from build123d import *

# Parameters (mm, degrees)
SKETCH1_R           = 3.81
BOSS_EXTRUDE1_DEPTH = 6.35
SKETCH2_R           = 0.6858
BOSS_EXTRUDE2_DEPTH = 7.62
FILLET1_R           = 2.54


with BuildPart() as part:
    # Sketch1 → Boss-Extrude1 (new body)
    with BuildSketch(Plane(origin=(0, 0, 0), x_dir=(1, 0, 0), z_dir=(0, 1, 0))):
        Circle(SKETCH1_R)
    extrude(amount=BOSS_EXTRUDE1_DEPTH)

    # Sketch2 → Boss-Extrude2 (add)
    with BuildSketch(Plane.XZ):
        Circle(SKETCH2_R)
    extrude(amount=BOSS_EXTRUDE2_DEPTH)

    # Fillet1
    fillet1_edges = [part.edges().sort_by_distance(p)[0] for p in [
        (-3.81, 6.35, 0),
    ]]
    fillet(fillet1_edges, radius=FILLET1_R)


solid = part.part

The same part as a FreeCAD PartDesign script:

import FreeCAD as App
import Part
import Sketcher
from FreeCAD import Vector
Q = App.Units.Quantity


def edges_at(feature, points):
    """Names of the edges that pass closest to the given points."""
    edges = feature.Shape.Edges
    near = lambda p: min(range(len(edges)), key=lambda i: edges[i].distToShape(Part.Vertex(*p))[0])
    return sorted({f"Edge{near(p) + 1}" for p in points})

doc = App.newDocument("Part")
body = doc.addObject("PartDesign::Body", "Body")

# Sketch on XZ plane
sketch1 = body.newObject("Sketcher::SketchObject", "Sketch")
sketch1.AttachmentSupport = (doc.getObject("XZ_Plane"), [""])
sketch1.MapMode = "FlatFace"
sketch1.addGeometry(Part.Circle(Vector(0, 0, 0), Vector(0, 0, 1), 3.81), False)
sketch1.addConstraint([
    Sketcher.Constraint("Coincident", 0, 3, -1, 1),
    Sketcher.Constraint("Diameter", 0, Q("0.3 in")),
])
pad1 = body.newObject("PartDesign::Pad", "Pad")
pad1.Profile = sketch1
pad1.Length = Q("0.25 in")
pad1.Reversed = True

# Sketch on XZ plane
sketch2 = body.newObject("Sketcher::SketchObject", "Sketch001")
sketch2.AttachmentSupport = (doc.getObject("XZ_Plane"), [""])
sketch2.MapMode = "FlatFace"
sketch2.addGeometry(Part.Circle(Vector(0, 0, 0), Vector(0, 0, 1), 0.6858), False)
sketch2.addConstraint([
    Sketcher.Constraint("Coincident", 0, 3, -1, 1),
    Sketcher.Constraint("Diameter", 0, Q("0.054 in")),
])
pad2 = body.newObject("PartDesign::Pad", "Pad001")
pad2.Profile = sketch2
pad2.Length = Q("0.3 in")
doc.recompute()

fillet = body.newObject("PartDesign::Fillet", "Fillet")
fillet.Base = (pad2, edges_at(pad2, [(-3.81, 6.35, 0)]))
fillet.Radius = Q("0.1 in")

doc.recompute()
